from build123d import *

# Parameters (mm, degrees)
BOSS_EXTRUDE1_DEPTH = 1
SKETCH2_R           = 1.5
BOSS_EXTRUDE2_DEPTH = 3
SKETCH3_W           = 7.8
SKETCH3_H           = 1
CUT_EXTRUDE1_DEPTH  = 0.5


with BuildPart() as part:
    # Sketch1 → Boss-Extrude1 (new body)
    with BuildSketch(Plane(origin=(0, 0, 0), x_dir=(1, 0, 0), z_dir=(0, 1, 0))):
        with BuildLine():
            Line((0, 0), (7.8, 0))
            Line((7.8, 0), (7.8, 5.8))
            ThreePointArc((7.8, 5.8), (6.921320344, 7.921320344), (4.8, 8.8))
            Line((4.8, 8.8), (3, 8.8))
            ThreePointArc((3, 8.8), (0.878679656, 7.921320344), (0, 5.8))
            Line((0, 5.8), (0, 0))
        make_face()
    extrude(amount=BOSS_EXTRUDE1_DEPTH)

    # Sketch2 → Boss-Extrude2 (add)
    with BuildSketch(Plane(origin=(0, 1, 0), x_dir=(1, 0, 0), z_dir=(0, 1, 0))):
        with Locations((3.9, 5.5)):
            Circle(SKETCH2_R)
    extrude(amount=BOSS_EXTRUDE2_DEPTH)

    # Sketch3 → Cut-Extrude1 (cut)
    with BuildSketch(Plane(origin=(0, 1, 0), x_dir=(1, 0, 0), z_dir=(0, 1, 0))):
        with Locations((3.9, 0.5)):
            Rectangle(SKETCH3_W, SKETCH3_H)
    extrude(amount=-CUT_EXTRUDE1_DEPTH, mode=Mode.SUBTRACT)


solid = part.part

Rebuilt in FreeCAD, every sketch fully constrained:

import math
import FreeCAD as App
import Part
import Sketcher
from FreeCAD import Vector
Q = App.Units.Quantity


def add_polygon(sketch, points):
    """Adds a closed chain of lines whose ends are joined by coincident constraints."""
    first, n = sketch.GeometryCount, len(points)
    for a, b in zip(points, points[1:] + points[:1]):
        sketch.addGeometry(Part.LineSegment(App.Vector(*a, 0), App.Vector(*b, 0)), False)
    for i in range(n):
        sketch.addConstraint(Sketcher.Constraint("Coincident", first + i, 2, first + (i + 1) % n, 1))

doc = App.newDocument("Part")
body = doc.addObject("PartDesign::Body", "Body")

sketch1 = body.newObject("Sketcher::SketchObject", "Sketch")
sketch1.AttachmentSupport = (doc.getObject("XZ_Plane"), [""])
sketch1.MapMode = "FlatFace"
sketch1.addGeometry([
    Part.LineSegment(Vector(0, 0, 0), Vector(7.8, 0, 0)),
    Part.LineSegment(Vector(7.8, 0, 0), Vector(7.8, -5.8, 0)),
    Part.ArcOfCircle(Part.Circle(Vector(4.8, -5.8, 0), Vector(0, 0, 1), 3), math.radians(-90), math.radians(0)),
    Part.LineSegment(Vector(4.8, -8.8, 0), Vector(3, -8.8, 0)),
    Part.ArcOfCircle(Part.Circle(Vector(3, -5.8, 0), Vector(0, 0, 1), 3), math.radians(180), math.radians(270)),
    Part.LineSegment(Vector(0, -5.8, 0), Vector(0, 0, 0)),
], False)
sketch1.addConstraint([
    Sketcher.Constraint("Coincident", 0, 2, 1, 1),
    Sketcher.Constraint("Tangent", 1, 2, 2, 2),
    Sketcher.Constraint("Tangent", 2, 1, 3, 1),
    Sketcher.Constraint("Tangent", 3, 2, 4, 2),
    Sketcher.Constraint("Tangent", 4, 1, 5, 1),
    Sketcher.Constraint("Coincident", 5, 2, 0, 1),
    Sketcher.Constraint("Horizontal", 0),
    Sketcher.Constraint("Vertical", 1),
    Sketcher.Constraint("Horizontal", 3),
    Sketcher.Constraint("Vertical", 5),
    Sketcher.Constraint("Coincident", 5, 2, -1, 1),
    Sketcher.Constraint("Equal", 2, 4),
    Sketcher.Constraint("Radius", 2, Q("3 mm")),
    Sketcher.Constraint("DistanceX", 0, 1, 0, 2, Q("7.8 mm")),
    Sketcher.Constraint("DistanceY", 1, 2, 1, 1, Q("5.8 mm")),
])
pad1 = body.newObject("PartDesign::Pad", "Pad")
pad1.Profile = sketch1
pad1.Length = 1
pad1.Reversed = True

sketch2 = body.newObject("Sketcher::SketchObject", "Sketch001")
sketch2.AttachmentSupport = (doc.getObject("XZ_Plane"), [""])
sketch2.MapMode = "FlatFace"
sketch2.AttachmentOffset = App.Placement(Vector(0, 0, -1), App.Rotation())
sketch2.addGeometry(Part.Circle(Vector(3.9, -5.5, 0), Vector(0, 0, 1), 1.5), False)
sketch2.addConstraint([
    Sketcher.Constraint("Diameter", 0, Q("3 mm")),
    Sketcher.Constraint("DistanceX", -1, 1, 0, 3, Q("3.9 mm")),
    Sketcher.Constraint("DistanceY", 0, 3, -1, 1, Q("5.5 mm")),
])
pad2 = body.newObject("PartDesign::Pad", "Pad001")
pad2.Profile = sketch2
pad2.Length = 3
pad2.Reversed = True

sketch3 = body.newObject("Sketcher::SketchObject", "Sketch002")
sketch3.AttachmentSupport = (doc.getObject("XZ_Plane"), [""])
sketch3.MapMode = "FlatFace"
sketch3.AttachmentOffset = App.Placement(Vector(0, 0, -1), App.Rotation())
add_polygon(sketch3, [(0, -1), (0, 0), (7.8, 0), (7.8, -1)])
sketch3.addConstraint([
    Sketcher.Constraint("Vertical", 0),
    Sketcher.Constraint("Horizontal", 1),
    Sketcher.Constraint("Vertical", 2),
    Sketcher.Constraint("Horizontal", 3),
    Sketcher.Constraint("Coincident", 0, 2, -1, 1),
    Sketcher.Constraint("DistanceY", 0, 1, 0, 2, Q("1 mm")),
    Sketcher.Constraint("DistanceX", 1, 1, 1, 2, Q("7.8 mm")),
])
pocket1 = body.newObject("PartDesign::Pocket", "Pocket")
pocket1.Profile = sketch3
pocket1.Length = 0.5
pocket1.Reversed = True

doc.recompute()
